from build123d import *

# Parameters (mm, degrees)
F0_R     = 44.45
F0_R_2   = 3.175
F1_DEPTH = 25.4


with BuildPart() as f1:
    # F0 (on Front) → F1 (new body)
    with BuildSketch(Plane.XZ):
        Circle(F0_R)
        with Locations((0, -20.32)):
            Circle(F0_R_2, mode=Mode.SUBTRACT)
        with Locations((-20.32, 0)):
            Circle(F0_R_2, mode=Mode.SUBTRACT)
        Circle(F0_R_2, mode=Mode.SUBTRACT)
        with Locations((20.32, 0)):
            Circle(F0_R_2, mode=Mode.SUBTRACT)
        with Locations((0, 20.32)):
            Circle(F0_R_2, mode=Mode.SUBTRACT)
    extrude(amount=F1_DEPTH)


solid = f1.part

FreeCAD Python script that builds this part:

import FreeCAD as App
import Part
import Sketcher
Q = App.Units.Quantity

doc = App.newDocument("Part")
body = doc.addObject("PartDesign::Body", "Body")

# Sketch on XZ plane
sketch1 = body.newObject("Sketcher::SketchObject", "Sketch")
sketch1.AttachmentSupport = (doc.getObject("XZ_Plane"), [""])
sketch1.MapMode = "FlatFace"
sketch1.addGeometry(Part.Circle(App.Vector(0, 0, 0), App.Vector(0, 0, 1), 44.5), False)
sketch1.addGeometry(Part.Circle(App.Vector(0, -20.3, 0), App.Vector(0, 0, 1), 3.2), False)
sketch1.addGeometry(Part.Circle(App.Vector(-20.3, 0, 0), App.Vector(0, 0, 1), 3.2), False)
sketch1.addGeometry(Part.Circle(App.Vector(0, 0, 0), App.Vector(0, 0, 1), 3.2), False)
sketch1.addGeometry(Part.Circle(App.Vector(20.3, 0, 0), App.Vector(0, 0, 1), 3.2), False)
sketch1.addGeometry(Part.Circle(App.Vector(0, 20.3, 0), App.Vector(0, 0, 1), 3.2), False)
sketch1.addConstraint(Sketcher.Constraint("Coincident", 0, 3, -1, 1))
sketch1.addConstraint(Sketcher.Constraint("Coincident", 3, 3, -1, 1))
sketch1.addConstraint(Sketcher.Constraint("Equal", 1, 2))
sketch1.addConstraint(Sketcher.Constraint("Equal", 2, 3))
sketch1.addConstraint(Sketcher.Constraint("Equal", 3, 4))
sketch1.addConstraint(Sketcher.Constraint("Equal", 4, 5))
sketch1.addConstraint(Sketcher.Constraint("Symmetric", 2, 3, 4, 3, -1, 1))
sketch1.addConstraint(Sketcher.Constraint("Symmetric", 1, 3, 5, 3, -1, 1))
sketch1.addConstraint(Sketcher.Constraint("PointOnObject", 1, 3, -2))
sketch1.addConstraint(Sketcher.Constraint("PointOnObject", 2, 3, -1))
sketch1.addConstraint(Sketcher.Constraint("Diameter", 0, Q("3.5 in")))
sketch1.addConstraint(Sketcher.Constraint("Diameter", 1, Q("0.25 in")))
sketch1.addConstraint(Sketcher.Constraint("DistanceY", 1, 3, -1, 1, Q("0.8 in")))
sketch1.addConstraint(Sketcher.Constraint("DistanceX", 2, 3, -1, 1, Q("0.8 in")))
pad1 = body.newObject("PartDesign::Pad", "Pad")
pad1.Profile = sketch1
pad1.Length = Q("1 in")

doc.recompute()
